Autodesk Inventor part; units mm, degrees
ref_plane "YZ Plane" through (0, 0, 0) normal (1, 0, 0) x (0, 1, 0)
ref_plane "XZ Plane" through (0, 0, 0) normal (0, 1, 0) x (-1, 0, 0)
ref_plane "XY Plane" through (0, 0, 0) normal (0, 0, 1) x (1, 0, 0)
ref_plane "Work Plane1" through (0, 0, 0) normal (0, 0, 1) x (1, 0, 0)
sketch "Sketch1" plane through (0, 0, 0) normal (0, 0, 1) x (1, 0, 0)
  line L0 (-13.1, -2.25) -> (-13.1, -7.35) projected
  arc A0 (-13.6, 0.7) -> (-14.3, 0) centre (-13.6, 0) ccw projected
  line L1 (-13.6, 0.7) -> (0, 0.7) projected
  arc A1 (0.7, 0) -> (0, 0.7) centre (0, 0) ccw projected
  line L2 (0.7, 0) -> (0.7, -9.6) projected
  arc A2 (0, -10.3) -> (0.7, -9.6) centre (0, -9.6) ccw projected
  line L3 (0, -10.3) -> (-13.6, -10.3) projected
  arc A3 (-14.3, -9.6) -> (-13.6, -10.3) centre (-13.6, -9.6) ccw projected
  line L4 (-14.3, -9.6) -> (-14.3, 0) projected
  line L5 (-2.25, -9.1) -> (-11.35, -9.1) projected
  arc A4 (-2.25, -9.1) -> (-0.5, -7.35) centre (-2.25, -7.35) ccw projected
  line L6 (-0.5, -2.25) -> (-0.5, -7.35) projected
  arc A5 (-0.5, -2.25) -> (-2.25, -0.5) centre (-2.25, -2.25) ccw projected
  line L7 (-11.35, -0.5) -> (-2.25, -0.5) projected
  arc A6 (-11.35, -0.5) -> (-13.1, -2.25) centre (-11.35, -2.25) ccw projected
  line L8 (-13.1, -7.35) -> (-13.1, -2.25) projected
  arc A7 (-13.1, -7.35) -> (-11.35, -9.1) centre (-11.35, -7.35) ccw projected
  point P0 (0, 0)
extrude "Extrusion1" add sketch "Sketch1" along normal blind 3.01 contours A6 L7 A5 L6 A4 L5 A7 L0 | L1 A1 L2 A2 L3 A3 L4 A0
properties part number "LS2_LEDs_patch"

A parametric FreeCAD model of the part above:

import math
import FreeCAD as App
import Part
import Sketcher
from FreeCAD import Vector
Q = App.Units.Quantity

doc = App.newDocument("Part")
params = doc.addObject("Spreadsheet::Sheet", "Params")
for row, (alias, value) in enumerate([
    ("sketch1_radius", "0.7 mm"),
    ("sketch1_width", "13.6 mm"),
    ("sketch1_height", "9.6 mm"),
    ("pad1_length", "3.01 mm"),
], start=1):
    params.set(f"A{row}", alias)
    params.set(f"B{row}", "=" + value)
    params.setAlias(f"B{row}", alias)

body = doc.addObject("PartDesign::Body", "Body")

sketch1 = body.newObject("Sketcher::SketchObject", "Sketch")
sketch1.AttachmentSupport = (doc.getObject("XY_Plane"), [""])
sketch1.MapMode = "FlatFace"
sketch1.addGeometry(Part.LineSegment(Vector(0, 0.7, 0), Vector(-13.6, 0.7, 0)), False)
sketch1.addGeometry(Part.ArcOfCircle(Part.Circle(Vector(-13.6, 0, 0), Vector(0, 0, 1), 0.7), math.radians(90), math.radians(180)), False)
sketch1.addGeometry(Part.LineSegment(Vector(-14.3, 0, 0), Vector(-14.3, -9.6, 0)), False)
sketch1.addGeometry(Part.ArcOfCircle(Part.Circle(Vector(-13.6, -9.6, 0), Vector(0, 0, 1), 0.7), math.radians(180), math.radians(270)), False)
sketch1.addGeometry(Part.LineSegment(Vector(-13.6, -10.3, 0), Vector(0, -10.3, 0)), False)
sketch1.addGeometry(Part.ArcOfCircle(Part.Circle(Vector(0, -9.6, 0), Vector(0, 0, 1), 0.7), math.radians(-90), math.radians(0)), False)
sketch1.addGeometry(Part.LineSegment(Vector(0.7, -9.6, 0), Vector(0.7, 0, 0)), False)
sketch1.addGeometry(Part.ArcOfCircle(Part.Circle(Vector(0, 0, 0), Vector(0, 0, 1), 0.7), math.radians(0), math.radians(90)), False)
sketch1.addConstraint(Sketcher.Constraint("Tangent", 0, 2, 1, 1))
sketch1.addConstraint(Sketcher.Constraint("Tangent", 1, 2, 2, 1))
sketch1.addConstraint(Sketcher.Constraint("Tangent", 2, 2, 3, 1))
sketch1.addConstraint(Sketcher.Constraint("Tangent", 3, 2, 4, 1))
sketch1.addConstraint(Sketcher.Constraint("Tangent", 4, 2, 5, 1))
sketch1.addConstraint(Sketcher.Constraint("Tangent", 5, 2, 6, 1))
sketch1.addConstraint(Sketcher.Constraint("Tangent", 6, 2, 7, 1))
sketch1.addConstraint(Sketcher.Constraint("Tangent", 7, 2, 0, 1))
sketch1.addConstraint(Sketcher.Constraint("Horizontal", 0))
sketch1.addConstraint(Sketcher.Constraint("Vertical", 2))
sketch1.addConstraint(Sketcher.Constraint("Horizontal", 4))
sketch1.addConstraint(Sketcher.Constraint("Vertical", 6))
sketch1.addConstraint(Sketcher.Constraint("Coincident", 7, 3, -1, 1))
sketch1.addConstraint(Sketcher.Constraint("Equal", 1, 3))
sketch1.addConstraint(Sketcher.Constraint("Equal", 3, 5))
sketch1.addConstraint(Sketcher.Constraint("Equal", 5, 7))
sketch1.addConstraint(Sketcher.Constraint("Radius", 1, Q("0.7 mm")))
sketch1.addConstraint(Sketcher.Constraint("DistanceX", 0, 2, 0, 1, Q("13.6 mm")))
sketch1.addConstraint(Sketcher.Constraint("DistanceY", 2, 2, 2, 1, Q("9.6 mm")))
sketch1.setExpression("Constraints[16]", "Params.sketch1_radius")
sketch1.setExpression("Constraints[17]", "Params.sketch1_width")
sketch1.setExpression("Constraints[18]", "Params.sketch1_height")
pad1 = body.newObject("PartDesign::Pad", "Pad")
pad1.Profile = sketch1
pad1.setExpression("Length", "Params.pad1_length")

doc.recompute()
